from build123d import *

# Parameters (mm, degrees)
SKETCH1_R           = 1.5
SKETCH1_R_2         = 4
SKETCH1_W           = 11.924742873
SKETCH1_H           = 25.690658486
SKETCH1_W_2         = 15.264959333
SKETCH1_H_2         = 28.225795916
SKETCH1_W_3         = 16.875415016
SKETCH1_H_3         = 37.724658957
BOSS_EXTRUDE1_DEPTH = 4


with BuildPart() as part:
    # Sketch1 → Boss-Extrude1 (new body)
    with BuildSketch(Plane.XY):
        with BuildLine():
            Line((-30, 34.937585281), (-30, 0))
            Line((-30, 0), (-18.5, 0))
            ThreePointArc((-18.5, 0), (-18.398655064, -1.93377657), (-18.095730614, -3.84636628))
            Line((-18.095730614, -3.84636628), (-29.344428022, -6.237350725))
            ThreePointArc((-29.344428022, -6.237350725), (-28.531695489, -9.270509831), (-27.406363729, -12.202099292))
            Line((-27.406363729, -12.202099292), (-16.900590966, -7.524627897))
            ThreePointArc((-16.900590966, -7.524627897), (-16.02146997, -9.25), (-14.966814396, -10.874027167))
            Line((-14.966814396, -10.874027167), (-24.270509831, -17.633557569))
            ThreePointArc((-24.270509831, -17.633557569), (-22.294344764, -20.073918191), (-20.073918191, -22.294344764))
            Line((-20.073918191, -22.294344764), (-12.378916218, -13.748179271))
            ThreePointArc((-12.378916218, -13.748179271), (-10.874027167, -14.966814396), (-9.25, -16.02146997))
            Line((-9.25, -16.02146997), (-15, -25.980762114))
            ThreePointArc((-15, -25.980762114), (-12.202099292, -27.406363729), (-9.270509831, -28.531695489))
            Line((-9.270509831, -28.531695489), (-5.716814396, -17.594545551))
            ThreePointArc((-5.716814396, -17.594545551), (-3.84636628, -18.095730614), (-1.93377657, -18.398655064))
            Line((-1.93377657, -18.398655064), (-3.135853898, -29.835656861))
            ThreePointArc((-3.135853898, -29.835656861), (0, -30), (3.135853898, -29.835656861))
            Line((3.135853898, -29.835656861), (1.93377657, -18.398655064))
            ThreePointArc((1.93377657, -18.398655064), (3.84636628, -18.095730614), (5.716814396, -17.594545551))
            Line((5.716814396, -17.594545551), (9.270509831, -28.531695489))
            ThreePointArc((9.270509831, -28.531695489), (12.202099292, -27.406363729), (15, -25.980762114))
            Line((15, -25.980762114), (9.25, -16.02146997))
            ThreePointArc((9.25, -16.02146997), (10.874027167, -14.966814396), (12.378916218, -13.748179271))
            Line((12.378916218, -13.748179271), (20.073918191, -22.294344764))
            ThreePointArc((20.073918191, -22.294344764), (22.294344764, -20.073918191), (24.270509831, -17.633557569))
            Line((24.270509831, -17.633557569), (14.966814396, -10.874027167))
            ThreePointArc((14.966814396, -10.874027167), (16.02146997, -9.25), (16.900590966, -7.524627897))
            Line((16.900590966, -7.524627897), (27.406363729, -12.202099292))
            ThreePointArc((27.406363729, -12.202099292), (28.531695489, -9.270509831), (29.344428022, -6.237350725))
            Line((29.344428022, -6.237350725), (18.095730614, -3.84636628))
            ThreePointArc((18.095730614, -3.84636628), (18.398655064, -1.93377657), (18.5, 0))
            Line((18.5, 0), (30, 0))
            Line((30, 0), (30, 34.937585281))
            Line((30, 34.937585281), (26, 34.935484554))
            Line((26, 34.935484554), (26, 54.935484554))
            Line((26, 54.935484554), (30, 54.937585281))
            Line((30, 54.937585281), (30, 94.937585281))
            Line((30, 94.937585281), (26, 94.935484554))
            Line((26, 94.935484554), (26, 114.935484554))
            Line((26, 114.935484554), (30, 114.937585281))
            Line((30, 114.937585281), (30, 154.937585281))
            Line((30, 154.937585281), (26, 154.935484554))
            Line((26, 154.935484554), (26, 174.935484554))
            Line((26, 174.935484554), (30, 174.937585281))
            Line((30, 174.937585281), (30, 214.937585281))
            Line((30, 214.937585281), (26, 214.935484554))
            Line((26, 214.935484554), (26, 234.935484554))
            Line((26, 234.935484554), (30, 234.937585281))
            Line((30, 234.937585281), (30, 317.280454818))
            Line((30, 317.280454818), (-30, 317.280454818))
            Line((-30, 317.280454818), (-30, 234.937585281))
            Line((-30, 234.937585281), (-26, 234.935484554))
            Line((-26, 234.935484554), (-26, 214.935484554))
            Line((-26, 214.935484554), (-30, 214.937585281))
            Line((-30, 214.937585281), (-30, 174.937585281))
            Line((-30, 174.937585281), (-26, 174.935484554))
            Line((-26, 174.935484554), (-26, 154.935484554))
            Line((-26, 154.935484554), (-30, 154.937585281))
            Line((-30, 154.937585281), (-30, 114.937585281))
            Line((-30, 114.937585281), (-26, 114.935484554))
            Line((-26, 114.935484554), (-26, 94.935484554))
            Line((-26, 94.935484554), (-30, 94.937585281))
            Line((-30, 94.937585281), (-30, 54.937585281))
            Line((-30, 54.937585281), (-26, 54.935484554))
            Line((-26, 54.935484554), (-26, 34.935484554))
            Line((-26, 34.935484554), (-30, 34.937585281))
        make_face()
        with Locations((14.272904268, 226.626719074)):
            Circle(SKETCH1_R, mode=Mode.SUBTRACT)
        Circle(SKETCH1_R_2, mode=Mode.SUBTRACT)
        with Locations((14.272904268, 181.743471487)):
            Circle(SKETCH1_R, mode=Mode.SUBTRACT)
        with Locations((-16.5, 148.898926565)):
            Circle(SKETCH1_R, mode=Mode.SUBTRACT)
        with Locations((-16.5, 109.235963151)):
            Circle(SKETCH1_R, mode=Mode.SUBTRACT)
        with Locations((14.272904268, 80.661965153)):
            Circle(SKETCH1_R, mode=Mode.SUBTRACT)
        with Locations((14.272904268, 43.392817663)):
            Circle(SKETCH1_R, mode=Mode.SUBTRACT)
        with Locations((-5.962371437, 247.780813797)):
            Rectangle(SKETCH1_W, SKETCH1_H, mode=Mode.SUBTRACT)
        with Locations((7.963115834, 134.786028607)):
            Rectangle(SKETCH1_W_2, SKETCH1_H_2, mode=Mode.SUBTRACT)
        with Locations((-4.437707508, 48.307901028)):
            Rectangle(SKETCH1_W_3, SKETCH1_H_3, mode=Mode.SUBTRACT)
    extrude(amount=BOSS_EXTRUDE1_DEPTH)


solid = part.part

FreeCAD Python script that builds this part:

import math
import FreeCAD as App
import Part
import Sketcher

V = App.Vector
Q = App.Units.Quantity


def add_polygon(sketch, points):
    """Adds a closed chain of lines whose ends are joined by coincident constraints."""
    first, n = sketch.GeometryCount, len(points)
    for a, b in zip(points, points[1:] + points[:1]):
        sketch.addGeometry(Part.LineSegment(App.Vector(*a, 0), App.Vector(*b, 0)), False)
    for i in range(n):
        sketch.addConstraint(Sketcher.Constraint("Coincident", first + i, 2, first + (i + 1) % n, 1))

doc = App.newDocument("Part")
body = doc.addObject("PartDesign::Body", "Body")

sketch1 = body.newObject("Sketcher::SketchObject", "Sketch")
sketch1.AttachmentSupport = (doc.getObject("XY_Plane"), [""])
sketch1.MapMode = "FlatFace"
sketch1.addGeometry(Part.LineSegment(V(-30, 34.9, 0), V(-30, 0, 0)), False)
sketch1.addGeometry(Part.LineSegment(V(-30, 0, 0), V(-18.5, 0, 0)), False)
sketch1.addGeometry(Part.ArcOfCircle(Part.Circle(V(0, 0, 0), V(0, 0, 1), 18.5), math.radians(-180), math.radians(-168)), False)
sketch1.addGeometry(Part.LineSegment(V(-18.1, -3.8, 0), V(-29.3, -6.2, 0)), False)
sketch1.addGeometry(Part.ArcOfCircle(Part.Circle(V(0, 0, 0), V(0, 0, 1), 30), math.radians(-168), math.radians(-156)), False)
sketch1.addGeometry(Part.LineSegment(V(-27.4, -12.2, 0), V(-16.9, -7.5, 0)), False)
sketch1.addGeometry(Part.ArcOfCircle(Part.Circle(V(0, 0, 0), V(0, 0, 1), 18.5), math.radians(-156), math.radians(-144)), False)
sketch1.addGeometry(Part.LineSegment(V(-15, -10.9, 0), V(-24.3, -17.6, 0)), False)
sketch1.addGeometry(Part.ArcOfCircle(Part.Circle(V(0, 0, 0), V(0, 0, 1), 30), math.radians(-144), math.radians(-132)), False)
sketch1.addGeometry(Part.LineSegment(V(-20.1, -22.3, 0), V(-12.4, -13.7, 0)), False)
sketch1.addGeometry(Part.ArcOfCircle(Part.Circle(V(0, 0, 0), V(0, 0, 1), 18.5), math.radians(-132), math.radians(-120)), False)
sketch1.addGeometry(Part.LineSegment(V(-9.2, -16, 0), V(-15, -26, 0)), False)
sketch1.addGeometry(Part.ArcOfCircle(Part.Circle(V(0, 0, 0), V(0, 0, 1), 30), math.radians(-120), math.radians(-108)), False)
sketch1.addGeometry(Part.LineSegment(V(-9.3, -28.5, 0), V(-5.7, -17.6, 0)), False)
sketch1.addGeometry(Part.ArcOfCircle(Part.Circle(V(0, 0, 0), V(0, 0, 1), 18.5), math.radians(-108), math.radians(-96)), False)
sketch1.addGeometry(Part.LineSegment(V(-1.9, -18.4, 0), V(-3.1, -29.8, 0)), False)
sketch1.addGeometry(Part.ArcOfCircle(Part.Circle(V(0, 0, 0), V(0, 0, 1), 30), math.radians(-96), math.radians(-84)), False)
sketch1.addGeometry(Part.LineSegment(V(3.1, -29.8, 0), V(1.9, -18.4, 0)), False)
sketch1.addGeometry(Part.ArcOfCircle(Part.Circle(V(0, 0, 0), V(0, 0, 1), 18.5), math.radians(-84), math.radians(-72)), False)
sketch1.addGeometry(Part.LineSegment(V(5.7, -17.6, 0), V(9.3, -28.5, 0)), False)
sketch1.addGeometry(Part.ArcOfCircle(Part.Circle(V(0, 0, 0), V(0, 0, 1), 30), math.radians(-72), math.radians(-60)), False)
sketch1.addGeometry(Part.LineSegment(V(15, -26, 0), V(9.2, -16, 0)), False)
sketch1.addGeometry(Part.ArcOfCircle(Part.Circle(V(0, 0, 0), V(0, 0, 1), 18.5), math.radians(-60), math.radians(-48)), False)
sketch1.addGeometry(Part.LineSegment(V(12.4, -13.7, 0), V(20.1, -22.3, 0)), False)
sketch1.addGeometry(Part.ArcOfCircle(Part.Circle(V(0, 0, 0), V(0, 0, 1), 30), math.radians(-48), math.radians(-36)), False)
sketch1.addGeometry(Part.LineSegment(V(24.3, -17.6, 0), V(15, -10.9, 0)), False)
sketch1.addGeometry(Part.ArcOfCircle(Part.Circle(V(0, 0, 0), V(0, 0, 1), 18.5), math.radians(-36), math.radians(-24)), False)
sketch1.addGeometry(Part.LineSegment(V(16.9, -7.5, 0), V(27.4, -12.2, 0)), False)
sketch1.addGeometry(Part.ArcOfCircle(Part.Circle(V(0, 0, 0), V(0, 0, 1), 30), math.radians(-24), math.radians(-12)), False)
sketch1.addGeometry(Part.LineSegment(V(29.3, -6.2, 0), V(18.1, -3.8, 0)), False)
sketch1.addGeometry(Part.ArcOfCircle(Part.Circle(V(0, 0, 0), V(0, 0, 1), 18.5), math.radians(-12), math.radians(0)), False)
sketch1.addGeometry(Part.LineSegment(V(18.5, 0, 0), V(30, 0, 0)), False)
sketch1.addGeometry(Part.LineSegment(V(30, 0, 0), V(30, 34.9, 0)), False)
sketch1.addGeometry(Part.LineSegment(V(30, 34.9, 0), V(26, 34.9, 0)), False)
sketch1.addGeometry(Part.LineSegment(V(26, 34.9, 0), V(26, 54.9, 0)), False)
sketch1.addGeometry(Part.LineSegment(V(26, 54.9, 0), V(30, 54.9, 0)), False)
sketch1.addGeometry(Part.LineSegment(V(30, 54.9, 0), V(30, 94.9, 0)), False)
sketch1.addGeometry(Part.LineSegment(V(30, 94.9, 0), V(26, 94.9, 0)), False)
sketch1.addGeometry(Part.LineSegment(V(26, 94.9, 0), V(26, 114.9, 0)), False)
sketch1.addGeometry(Part.LineSegment(V(26, 114.9, 0), V(30, 114.9, 0)), False)
sketch1.addGeometry(Part.LineSegment(V(30, 114.9, 0), V(30, 154.9, 0)), False)
sketch1.addGeometry(Part.LineSegment(V(30, 154.9, 0), V(26, 154.9, 0)), False)
sketch1.addGeometry(Part.LineSegment(V(26, 154.9, 0), V(26, 174.9, 0)), False)
sketch1.addGeometry(Part.LineSegment(V(26, 174.9, 0), V(30, 174.9, 0)), False)
sketch1.addGeometry(Part.LineSegment(V(30, 174.9, 0), V(30, 214.9, 0)), False)
sketch1.addGeometry(Part.LineSegment(V(30, 214.9, 0), V(26, 214.9, 0)), False)
sketch1.addGeometry(Part.LineSegment(V(26, 214.9, 0), V(26, 234.9, 0)), False)
sketch1.addGeometry(Part.LineSegment(V(26, 234.9, 0), V(30, 234.9, 0)), False)
sketch1.addGeometry(Part.LineSegment(V(30, 234.9, 0), V(30, 317.3, 0)), False)
sketch1.addGeometry(Part.LineSegment(V(30, 317.3, 0), V(-30, 317.3, 0)), False)
sketch1.addGeometry(Part.LineSegment(V(-30, 317.3, 0), V(-30, 234.9, 0)), False)
sketch1.addGeometry(Part.LineSegment(V(-30, 234.9, 0), V(-26, 234.9, 0)), False)
sketch1.addGeometry(Part.LineSegment(V(-26, 234.9, 0), V(-26, 214.9, 0)), False)
sketch1.addGeometry(Part.LineSegment(V(-26, 214.9, 0), V(-30, 214.9, 0)), False)
sketch1.addGeometry(Part.LineSegment(V(-30, 214.9, 0), V(-30, 174.9, 0)), False)
sketch1.addGeometry(Part.LineSegment(V(-30, 174.9, 0), V(-26, 174.9, 0)), False)
sketch1.addGeometry(Part.LineSegment(V(-26, 174.9, 0), V(-26, 154.9, 0)), False)
sketch1.addGeometry(Part.LineSegment(V(-26, 154.9, 0), V(-30, 154.9, 0)), False)
sketch1.addGeometry(Part.LineSegment(V(-30, 154.9, 0), V(-30, 114.9, 0)), False)
sketch1.addGeometry(Part.LineSegment(V(-30, 114.9, 0), V(-26, 114.9, 0)), False)
sketch1.addGeometry(Part.LineSegment(V(-26, 114.9, 0), V(-26, 94.9, 0)), False)
sketch1.addGeometry(Part.LineSegment(V(-26, 94.9, 0), V(-30, 94.9, 0)), False)
sketch1.addGeometry(Part.LineSegment(V(-30, 94.9, 0), V(-30, 54.9, 0)), False)
sketch1.addGeometry(Part.LineSegment(V(-30, 54.9, 0), V(-26, 54.9, 0)), False)
sketch1.addGeometry(Part.LineSegment(V(-26, 54.9, 0), V(-26, 34.9, 0)), False)
sketch1.addGeometry(Part.LineSegment(V(-26, 34.9, 0), V(-30, 34.9, 0)), False)
add_polygon(sketch1, [(4, 29.4), (-12.9, 29.4), (-12.9, 67.2), (4, 67.2)])
sketch1.addGeometry(Part.Circle(V(-16.5, 109.2, 0), V(0, 0, 1), 1.5), False)
sketch1.addGeometry(Part.Circle(V(0, 0, 0), V(0, 0, 1), 4), False)
sketch1.addGeometry(Part.Circle(V(14.3, 43.4, 0), V(0, 0, 1), 1.5), False)
sketch1.addGeometry(Part.Circle(V(14.3, 80.7, 0), V(0, 0, 1), 1.5), False)
sketch1.addGeometry(Part.Circle(V(-16.5, 148.9, 0), V(0, 0, 1), 1.5), False)
add_polygon(sketch1, [(0, 234.9), (-11.9, 234.9), (-11.9, 260.6), (0, 260.6)])
add_polygon(sketch1, [(15.6, 120.7), (0.3, 120.7), (0.3, 148.9), (15.6, 148.9)])
sketch1.addGeometry(Part.Circle(V(14.3, 181.7, 0), V(0, 0, 1), 1.5), False)
sketch1.addGeometry(Part.Circle(V(14.3, 226.6, 0), V(0, 0, 1), 1.5), False)
sketch1.addConstraint([
    Sketcher.Constraint("Coincident", 0, 2, 1, 1),
    Sketcher.Constraint("Coincident", 1, 2, 2, 1),
    Sketcher.Constraint("Coincident", 2, 2, 3, 1),
    Sketcher.Constraint("Coincident", 3, 2, 4, 1),
    Sketcher.Constraint("Coincident", 4, 2, 5, 1),
    Sketcher.Constraint("Coincident", 5, 2, 6, 1),
    Sketcher.Constraint("Coincident", 6, 2, 7, 1),
    Sketcher.Constraint("Coincident", 7, 2, 8, 1),
    Sketcher.Constraint("Coincident", 8, 2, 9, 1),
    Sketcher.Constraint("Coincident", 9, 2, 10, 1),
    Sketcher.Constraint("Coincident", 10, 2, 11, 1),
    Sketcher.Constraint("Coincident", 11, 2, 12, 1),
    Sketcher.Constraint("Coincident", 12, 2, 13, 1),
    Sketcher.Constraint("Coincident", 13, 2, 14, 1),
    Sketcher.Constraint("Coincident", 14, 2, 15, 1),
    Sketcher.Constraint("Coincident", 15, 2, 16, 1),
    Sketcher.Constraint("Coincident", 16, 2, 17, 1),
    Sketcher.Constraint("Coincident", 17, 2, 18, 1),
    Sketcher.Constraint("Coincident", 18, 2, 19, 1),
    Sketcher.Constraint("Coincident", 19, 2, 20, 1),
    Sketcher.Constraint("Coincident", 20, 2, 21, 1),
    Sketcher.Constraint("Coincident", 21, 2, 22, 1),
    Sketcher.Constraint("Coincident", 22, 2, 23, 1),
    Sketcher.Constraint("Coincident", 23, 2, 24, 1),
    Sketcher.Constraint("Coincident", 24, 2, 25, 1),
    Sketcher.Constraint("Coincident", 25, 2, 26, 1),
    Sketcher.Constraint("Coincident", 26, 2, 27, 1),
    Sketcher.Constraint("Coincident", 27, 2, 28, 1),
    Sketcher.Constraint("Coincident", 28, 2, 29, 1),
    Sketcher.Constraint("Coincident", 29, 2, 30, 1),
    Sketcher.Constraint("Coincident", 30, 2, 31, 1),
    Sketcher.Constraint("Coincident", 31, 2, 32, 1),
    Sketcher.Constraint("Coincident", 32, 2, 33, 1),
    Sketcher.Constraint("Coincident", 33, 2, 34, 1),
    Sketcher.Constraint("Coincident", 34, 2, 35, 1),
    Sketcher.Constraint("Coincident", 35, 2, 36, 1),
    Sketcher.Constraint("Coincident", 36, 2, 37, 1),
    Sketcher.Constraint("Coincident", 37, 2, 38, 1),
    Sketcher.Constraint("Coincident", 38, 2, 39, 1),
    Sketcher.Constraint("Coincident", 39, 2, 40, 1),
    Sketcher.Constraint("Coincident", 40, 2, 41, 1),
    Sketcher.Constraint("Coincident", 41, 2, 42, 1),
    Sketcher.Constraint("Coincident", 42, 2, 43, 1),
    Sketcher.Constraint("Coincident", 43, 2, 44, 1),
    Sketcher.Constraint("Coincident", 44, 2, 45, 1),
    Sketcher.Constraint("Coincident", 45, 2, 46, 1),
    Sketcher.Constraint("Coincident", 46, 2, 47, 1),
    Sketcher.Constraint("Coincident", 47, 2, 48, 1),
    Sketcher.Constraint("Coincident", 48, 2, 49, 1),
    Sketcher.Constraint("Coincident", 49, 2, 50, 1),
    Sketcher.Constraint("Coincident", 50, 2, 51, 1),
    Sketcher.Constraint("Coincident", 51, 2, 52, 1),
    Sketcher.Constraint("Coincident", 52, 2, 53, 1),
    Sketcher.Constraint("Coincident", 53, 2, 54, 1),
    Sketcher.Constraint("Coincident", 54, 2, 55, 1),
    Sketcher.Constraint("Coincident", 55, 2, 56, 1),
    Sketcher.Constraint("Coincident", 56, 2, 57, 1),
    Sketcher.Constraint("Coincident", 57, 2, 58, 1),
    Sketcher.Constraint("Coincident", 58, 2, 59, 1),
    Sketcher.Constraint("Coincident", 59, 2, 60, 1),
    Sketcher.Constraint("Coincident", 60, 2, 61, 1),
    Sketcher.Constraint("Coincident", 61, 2, 62, 1),
    Sketcher.Constraint("Coincident", 62, 2, 63, 1),
    Sketcher.Constraint("Coincident", 63, 2, 64, 1),
    Sketcher.Constraint("Coincident", 64, 2, 65, 1),
    Sketcher.Constraint("Coincident", 65, 2, 0, 1),
    Sketcher.Constraint("Vertical", 0),
    Sketcher.Constraint("Horizontal", 1),
    Sketcher.Constraint("Horizontal", 31),
    Sketcher.Constraint("Vertical", 32),
    Sketcher.Constraint("Vertical", 34),
    Sketcher.Constraint("Vertical", 36),
    Sketcher.Constraint("Vertical", 38),
    Sketcher.Constraint("Vertical", 40),
    Sketcher.Constraint("Vertical", 42),
    Sketcher.Constraint("Vertical", 44),
    Sketcher.Constraint("Vertical", 46),
    Sketcher.Constraint("Vertical", 48),
    Sketcher.Constraint("Horizontal", 49),
    Sketcher.Constraint("Vertical", 50),
    Sketcher.Constraint("Vertical", 52),
    Sketcher.Constraint("Vertical", 54),
    Sketcher.Constraint("Vertical", 56),
    Sketcher.Constraint("Vertical", 58),
    Sketcher.Constraint("Vertical", 60),
    Sketcher.Constraint("Vertical", 62),
    Sketcher.Constraint("Vertical", 64),
    Sketcher.Constraint("Horizontal", 66),
    Sketcher.Constraint("Vertical", 67),
    Sketcher.Constraint("Horizontal", 68),
    Sketcher.Constraint("Vertical", 69),
    Sketcher.Constraint("Horizontal", 75),
    Sketcher.Constraint("Vertical", 76),
    Sketcher.Constraint("Horizontal", 77),
    Sketcher.Constraint("Vertical", 78),
    Sketcher.Constraint("Horizontal", 79),
    Sketcher.Constraint("Vertical", 80),
    Sketcher.Constraint("Horizontal", 81),
    Sketcher.Constraint("Vertical", 82),
    Sketcher.Constraint("Coincident", 2, 3, -1, 1),
    Sketcher.Constraint("Coincident", 4, 3, -1, 1),
    Sketcher.Constraint("Coincident", 6, 3, -1, 1),
    Sketcher.Constraint("Coincident", 8, 3, -1, 1),
    Sketcher.Constraint("Coincident", 10, 3, -1, 1),
    Sketcher.Constraint("Coincident", 12, 3, -1, 1),
    Sketcher.Constraint("Coincident", 14, 3, -1, 1),
    Sketcher.Constraint("Coincident", 16, 3, -1, 1),
    Sketcher.Constraint("Coincident", 18, 3, -1, 1),
    Sketcher.Constraint("Coincident", 20, 3, -1, 1),
    Sketcher.Constraint("Coincident", 22, 3, -1, 1),
    Sketcher.Constraint("Coincident", 24, 3, -1, 1),
    Sketcher.Constraint("Coincident", 26, 3, -1, 1),
    Sketcher.Constraint("Coincident", 28, 3, -1, 1),
    Sketcher.Constraint("Coincident", 30, 3, -1, 1),
    Sketcher.Constraint("Coincident", 71, 3, -1, 1),
    Sketcher.Constraint("Equal", 2, 6),
    Sketcher.Constraint("Equal", 4, 8),
    Sketcher.Constraint("Equal", 6, 10),
    Sketcher.Constraint("Equal", 8, 12),
    Sketcher.Constraint("Equal", 10, 14),
    Sketcher.Constraint("Equal", 12, 16),
    Sketcher.Constraint("Equal", 14, 18),
    Sketcher.Constraint("Equal", 16, 20),
    Sketcher.Constraint("Equal", 18, 22),
    Sketcher.Constraint("Equal", 20, 24),
    Sketcher.Constraint("Equal", 22, 26),
    Sketcher.Constraint("Equal", 24, 28),
    Sketcher.Constraint("Equal", 26, 30),
    Sketcher.Constraint("Equal", 70, 72),
    Sketcher.Constraint("Equal", 72, 73),
    Sketcher.Constraint("Equal", 73, 74),
    Sketcher.Constraint("Equal", 74, 83),
    Sketcher.Constraint("Equal", 83, 84),
    Sketcher.Constraint("Symmetric", 0, 2, 31, 2, -1, 1),
    Sketcher.Constraint("Symmetric", 47, 2, 50, 2, -2),
    Sketcher.Constraint("Symmetric", 46, 2, 51, 2, -2),
    Sketcher.Constraint("Symmetric", 44, 2, 53, 2, -2),
    Sketcher.Constraint("Symmetric", 42, 2, 55, 2, -2),
    Sketcher.Constraint("Symmetric", 40, 2, 57, 2, -2),
    Sketcher.Constraint("Symmetric", 38, 2, 59, 2, -2),
    Sketcher.Constraint("Symmetric", 36, 2, 61, 2, -2),
    Sketcher.Constraint("Symmetric", 34, 2, 63, 2, -2),
    Sketcher.Constraint("PointOnObject", 0, 2, -1),
    Sketcher.Constraint("PointOnObject", 77, 2, -2),
    Sketcher.Constraint("Parallel", 33, 35),
    Sketcher.Constraint("Parallel", 35, 37),
    Sketcher.Constraint("Parallel", 37, 39),
    Sketcher.Constraint("Parallel", 39, 41),
    Sketcher.Constraint("Parallel", 41, 43),
    Sketcher.Constraint("Parallel", 43, 45),
    Sketcher.Constraint("Parallel", 45, 47),
    Sketcher.Constraint("Parallel", 51, 53),
    Sketcher.Constraint("Parallel", 53, 55),
    Sketcher.Constraint("Parallel", 55, 57),
    Sketcher.Constraint("Parallel", 57, 59),
    Sketcher.Constraint("Parallel", 59, 61),
    Sketcher.Constraint("Parallel", 61, 63),
    Sketcher.Constraint("Parallel", 63, 65),
    Sketcher.Constraint("Horizontal", 15, 2, 16, 2),
    Sketcher.Constraint("Horizontal", 14, 2, 17, 2),
    Sketcher.Constraint("Horizontal", 13, 2, 18, 2),
    Sketcher.Constraint("Horizontal", 12, 2, 19, 2),
    Sketcher.Constraint("Horizontal", 11, 2, 20, 2),
    Sketcher.Constraint("Horizontal", 10, 2, 21, 2),
    Sketcher.Constraint("Horizontal", 9, 2, 22, 2),
    Sketcher.Constraint("Horizontal", 8, 2, 23, 2),
    Sketcher.Constraint("Horizontal", 7, 2, 24, 2),
    Sketcher.Constraint("Horizontal", 6, 2, 25, 2),
    Sketcher.Constraint("Horizontal", 5, 2, 26, 2),
    Sketcher.Constraint("Horizontal", 4, 2, 27, 2),
    Sketcher.Constraint("Horizontal", 3, 2, 28, 2),
    Sketcher.Constraint("Horizontal", 2, 2, 29, 2),
    Sketcher.Constraint("Horizontal", 33, 2, 64, 2),
    Sketcher.Constraint("Horizontal", 51, 2, 75, 2),
    Sketcher.Constraint("Horizontal", 74, 3, 80, 2),
    Sketcher.Constraint("Vertical", 72, 3, 73, 3),
    Sketcher.Constraint("Vertical", 70, 3, 74, 3),
    Sketcher.Constraint("Vertical", 73, 3, 83, 3),
    Sketcher.Constraint("Vertical", 83, 3, 84, 3),
    Sketcher.Constraint("Vertical", 32, 2, 35, 2),
    Sketcher.Constraint("Vertical", 34, 2, 37, 2),
    Sketcher.Constraint("Vertical", 36, 2, 39, 2),
    Sketcher.Constraint("Vertical", 38, 2, 41, 2),
    Sketcher.Constraint("Vertical", 40, 2, 43, 2),
    Sketcher.Constraint("Vertical", 42, 2, 45, 2),
    Sketcher.Constraint("Vertical", 44, 2, 47, 2),
    Sketcher.Constraint("Equal", 34, 38),
    Sketcher.Constraint("Equal", 36, 40),
    Sketcher.Constraint("Equal", 38, 42),
    Sketcher.Constraint("Equal", 40, 44),
    Sketcher.Constraint("Equal", 42, 46),
    Sketcher.Constraint("Diameter", 70, Q("3 mm")),
    Sketcher.Constraint("Diameter", 71, Q("8 mm")),
    Sketcher.Constraint("Radius", 4, Q("30 mm")),
    Sketcher.Constraint("Radius", 2, Q("18.5 mm")),
    Sketcher.Constraint("DistanceX", 49, 2, 49, 1, Q("60 mm")),
    Sketcher.Constraint("DistanceY", 34, 1, 34, 2, Q("20 mm")),
    Sketcher.Constraint("DistanceY", 36, 1, 36, 2, Q("40 mm")),
    Sketcher.Constraint("Angle", 3, Q("-168 deg")),
    Sketcher.Constraint("Angle", 5, Q("24 deg")),
    Sketcher.Constraint("Angle", 7, Q("-144 deg")),
    Sketcher.Constraint("Angle", 9, Q("48 deg")),
    Sketcher.Constraint("Angle", 11, Q("-120 deg")),
    Sketcher.Constraint("Angle", 13, Q("72 deg")),
    Sketcher.Constraint("Angle", 15, Q("-96 deg")),
    Sketcher.Constraint("Distance", 33, Q("4.000001 mm")),
    Sketcher.Constraint("DistanceX", 11, 2, -1, 1, Q("15 mm")),
    Sketcher.Constraint("DistanceX", -1, 1, 68, 2, Q("4 mm")),
    Sketcher.Constraint("DistanceX", 70, 3, -1, 1, Q("16.5 mm")),
    Sketcher.Constraint("DistanceX", 79, 2, 79, 1, Q("15.264959 mm")),
    Sketcher.Constraint("DistanceY", 48, 1, 48, 2, Q("82.34287 mm")),
    Sketcher.Constraint("DistanceY", 67, 1, 67, 2, Q("37.724659 mm")),
    Sketcher.Constraint("DistanceY", 76, 1, 76, 2, Q("25.690658 mm")),
    Sketcher.Constraint("DistanceY", 4, 2, -1, 1, Q("12.202099 mm")),
    Sketcher.Constraint("DistanceX", 66, 2, 66, 1, Q("16.875415 mm")),
    Sketcher.Constraint("DistanceX", 75, 2, 75, 1, Q("11.924743 mm")),
    Sketcher.Constraint("DistanceY", 0, 2, 0, 1, Q("34.937585 mm")),
    Sketcher.Constraint("DistanceY", 80, 1, 80, 2, Q("28.225796 mm")),
    Sketcher.Constraint("DistanceY", -1, 1, 83, 3, Q("181.743471 mm")),
    Sketcher.Constraint("DistanceY", -1, 1, 84, 3, Q("226.626719 mm")),
    Sketcher.Constraint("DistanceX", 2, 2, -1, 1, Q("18.095731 mm")),
    Sketcher.Constraint("DistanceX", 7, 2, -1, 1, Q("24.27051 mm")),
    Sketcher.Constraint("DistanceX", 8, 2, -1, 1, Q("20.073918 mm")),
    Sketcher.Constraint("DistanceX", 12, 2, -1, 1, Q("9.27051 mm")),
    Sketcher.Constraint("DistanceY", -1, 1, 66, 2, Q("29.445572 mm")),
    Sketcher.Constraint("DistanceY", -1, 1, 79, 2, Q("120.673131 mm")),
    Sketcher.Constraint("DistanceY", -1, 1, 70, 3, Q("109.235963 mm")),
    Sketcher.Constraint("DistanceX", -1, 1, 72, 3, Q("14.272904 mm")),
    Sketcher.Constraint("DistanceY", -1, 1, 72, 3, Q("43.392818 mm")),
    Sketcher.Constraint("DistanceY", -1, 1, 73, 3, Q("80.661965 mm")),
    Sketcher.Constraint("DistanceX", 14, 2, -1, 1, Q("1.933777 mm")),
    Sketcher.Constraint("DistanceY", -1, 1, 33, 2, Q("34.935485 mm")),
    Sketcher.Constraint("DistanceX", -1, 1, 79, 2, Q("0.330636 mm")),
])
pad1 = body.newObject("PartDesign::Pad", "Pad")
pad1.Profile = sketch1
pad1.Length = 4

doc.recompute()
